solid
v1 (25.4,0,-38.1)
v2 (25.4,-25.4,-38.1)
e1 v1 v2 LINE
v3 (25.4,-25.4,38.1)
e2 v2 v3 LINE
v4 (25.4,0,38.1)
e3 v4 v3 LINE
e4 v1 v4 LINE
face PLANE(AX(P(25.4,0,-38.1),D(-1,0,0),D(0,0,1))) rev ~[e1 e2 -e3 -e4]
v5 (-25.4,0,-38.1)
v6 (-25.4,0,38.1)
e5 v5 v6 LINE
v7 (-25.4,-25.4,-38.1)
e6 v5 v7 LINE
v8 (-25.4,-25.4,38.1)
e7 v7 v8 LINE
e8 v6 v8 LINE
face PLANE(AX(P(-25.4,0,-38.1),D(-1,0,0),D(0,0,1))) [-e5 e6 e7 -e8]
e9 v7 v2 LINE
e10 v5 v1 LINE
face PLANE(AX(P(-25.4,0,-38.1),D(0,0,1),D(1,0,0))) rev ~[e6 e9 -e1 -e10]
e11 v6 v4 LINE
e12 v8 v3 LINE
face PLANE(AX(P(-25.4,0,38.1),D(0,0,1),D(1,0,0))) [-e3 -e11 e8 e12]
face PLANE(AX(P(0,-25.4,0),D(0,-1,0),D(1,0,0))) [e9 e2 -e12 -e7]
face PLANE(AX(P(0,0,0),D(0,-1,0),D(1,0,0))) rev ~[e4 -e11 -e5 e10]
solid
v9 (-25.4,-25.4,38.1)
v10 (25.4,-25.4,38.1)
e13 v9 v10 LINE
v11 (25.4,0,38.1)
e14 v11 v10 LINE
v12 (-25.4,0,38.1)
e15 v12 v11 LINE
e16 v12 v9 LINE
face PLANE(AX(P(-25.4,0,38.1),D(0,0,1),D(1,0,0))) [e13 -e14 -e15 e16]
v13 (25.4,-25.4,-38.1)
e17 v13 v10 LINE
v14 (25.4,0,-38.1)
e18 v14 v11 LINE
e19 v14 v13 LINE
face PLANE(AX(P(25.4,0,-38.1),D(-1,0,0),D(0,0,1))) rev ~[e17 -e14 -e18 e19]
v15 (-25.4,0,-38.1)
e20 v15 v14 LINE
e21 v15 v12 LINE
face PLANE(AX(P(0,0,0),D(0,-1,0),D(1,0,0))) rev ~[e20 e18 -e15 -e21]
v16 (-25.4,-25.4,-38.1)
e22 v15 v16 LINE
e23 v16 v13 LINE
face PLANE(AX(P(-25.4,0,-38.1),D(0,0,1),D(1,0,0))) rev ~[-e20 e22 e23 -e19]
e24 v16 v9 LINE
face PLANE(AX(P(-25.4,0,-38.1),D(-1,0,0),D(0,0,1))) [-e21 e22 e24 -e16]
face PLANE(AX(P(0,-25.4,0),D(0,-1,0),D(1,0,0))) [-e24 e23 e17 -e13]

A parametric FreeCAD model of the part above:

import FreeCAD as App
import Part
import Sketcher
Q = App.Units.Quantity


def add_polygon(sketch, points):
    """Adds a closed chain of lines whose ends are joined by coincident constraints."""
    first, n = sketch.GeometryCount, len(points)
    for a, b in zip(points, points[1:] + points[:1]):
        sketch.addGeometry(Part.LineSegment(App.Vector(*a, 0), App.Vector(*b, 0)), False)
    for i in range(n):
        sketch.addConstraint(Sketcher.Constraint("Coincident", first + i, 2, first + (i + 1) % n, 1))

doc = App.newDocument("Part")
body = doc.addObject("PartDesign::Body", "Body")

# Sketch on XZ plane
sketch1 = body.newObject("Sketcher::SketchObject", "Sketch")
sketch1.AttachmentSupport = (doc.getObject("XZ_Plane"), [""])
sketch1.MapMode = "FlatFace"
add_polygon(sketch1, [(-25, 38), (-25, -38), (25, -38), (25, 38)])  # lines 0-3
sketch1.addConstraint([
    Sketcher.Constraint("Vertical", 0),
    Sketcher.Constraint("Horizontal", 1),
    Sketcher.Constraint("Vertical", 2),
    Sketcher.Constraint("Horizontal", 3),
    Sketcher.Constraint("Symmetric", 0, 2, 2, 2, -1, 1),
    Sketcher.Constraint("DistanceX", 1, 1, 1, 2, Q("2 in")),
    Sketcher.Constraint("DistanceY", 0, 2, 0, 1, Q("3 in")),
])
pad1 = body.newObject("PartDesign::Pad", "Pad")
pad1.Profile = sketch1
pad1.Length = Q("1 in")
body2 = doc.addObject("PartDesign::Body", "Body001")

# Sketch on XZ plane
sketch2 = body2.newObject("Sketcher::SketchObject", "Sketch001")
sketch2.AttachmentSupport = (doc.getObject("XZ_Plane001"), [""])
sketch2.MapMode = "FlatFace"
add_polygon(sketch2, [(-25, 38), (-25, -38), (25, -38), (25, 38)])  # lines 0-3
sketch2.addConstraint([
    Sketcher.Constraint("Vertical", 0),
    Sketcher.Constraint("Horizontal", 1),
    Sketcher.Constraint("Vertical", 2),
    Sketcher.Constraint("Horizontal", 3),
    Sketcher.Constraint("Symmetric", 0, 2, 2, 2, -1, 1),
    Sketcher.Constraint("DistanceX", 1, 1, 1, 2, Q("2 in")),
    Sketcher.Constraint("DistanceY", 0, 2, 0, 1, Q("3 in")),
])
pad2 = body2.newObject("PartDesign::Pad", "Pad001")
pad2.Profile = sketch2
pad2.Length = Q("1 in")

doc.recompute()
